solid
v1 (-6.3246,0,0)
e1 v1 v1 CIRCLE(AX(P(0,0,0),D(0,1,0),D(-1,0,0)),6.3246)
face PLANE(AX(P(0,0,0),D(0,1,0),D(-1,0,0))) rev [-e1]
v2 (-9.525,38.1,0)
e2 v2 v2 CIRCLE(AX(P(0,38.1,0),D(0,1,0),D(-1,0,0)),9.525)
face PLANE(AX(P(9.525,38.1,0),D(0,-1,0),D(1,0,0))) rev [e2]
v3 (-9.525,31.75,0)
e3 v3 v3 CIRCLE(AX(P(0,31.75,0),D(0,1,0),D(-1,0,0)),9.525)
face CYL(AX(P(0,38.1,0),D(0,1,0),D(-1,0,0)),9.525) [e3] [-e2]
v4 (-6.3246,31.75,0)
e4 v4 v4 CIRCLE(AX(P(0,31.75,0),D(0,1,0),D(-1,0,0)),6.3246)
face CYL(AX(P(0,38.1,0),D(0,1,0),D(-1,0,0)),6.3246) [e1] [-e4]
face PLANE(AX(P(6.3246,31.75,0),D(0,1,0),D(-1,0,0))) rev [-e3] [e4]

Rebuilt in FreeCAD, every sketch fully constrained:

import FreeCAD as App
import Part
import Sketcher
Q = App.Units.Quantity

doc = App.newDocument("Part")
body = doc.addObject("PartDesign::Body", "Body")

# Sketch on XY plane
sketch1 = doc.addObject("Sketcher::SketchObject", "Sketch")
body.addObject(sketch1)
sketch1.AttachmentSupport = (doc.XY_Plane, [""])
sketch1.MapMode = "FlatFace"
sketch1.addGeometry(Part.LineSegment(App.Vector(0, 0, 0), App.Vector(6.3246, 0, 0)), False)
sketch1.addGeometry(Part.LineSegment(App.Vector(6.3246, 0, 0), App.Vector(6.3246, 31.75, 0)), False)
sketch1.addGeometry(Part.LineSegment(App.Vector(6.3246, 31.75, 0), App.Vector(9.525, 31.75, 0)), False)
sketch1.addGeometry(Part.LineSegment(App.Vector(9.525, 31.75, 0), App.Vector(9.525, 38.1, 0)), False)
sketch1.addGeometry(Part.LineSegment(App.Vector(9.525, 38.1, 0), App.Vector(0, 38.1, 0)), False)
sketch1.addGeometry(Part.LineSegment(App.Vector(0, 38.1, 0), App.Vector(0, 0, 0)), False)
sketch1.addConstraint(Sketcher.Constraint("Coincident", 0, 2, 1, 1))
sketch1.addConstraint(Sketcher.Constraint("Coincident", 1, 2, 2, 1))
sketch1.addConstraint(Sketcher.Constraint("Coincident", 2, 2, 3, 1))
sketch1.addConstraint(Sketcher.Constraint("Coincident", 3, 2, 4, 1))
sketch1.addConstraint(Sketcher.Constraint("Coincident", 4, 2, 5, 1))
sketch1.addConstraint(Sketcher.Constraint("Coincident", 5, 2, 0, 1))
sketch1.addConstraint(Sketcher.Constraint("Horizontal", 0))
sketch1.addConstraint(Sketcher.Constraint("Vertical", 1))
sketch1.addConstraint(Sketcher.Constraint("Horizontal", 2))
sketch1.addConstraint(Sketcher.Constraint("Vertical", 3))
sketch1.addConstraint(Sketcher.Constraint("Horizontal", 4))
sketch1.addConstraint(Sketcher.Constraint("Vertical", 5))
sketch1.addConstraint(Sketcher.Constraint("Coincident", 5, 2, -1, 1))
sketch1.addConstraint(Sketcher.Constraint("DistanceY", 5, 2, 5, 1, Q("1.5 in")))
sketch1.addConstraint(Sketcher.Constraint("DistanceY", 1, 1, 1, 2, Q("1.25 in")))
sketch1.addConstraint(Sketcher.Constraint("DistanceX", 0, 1, 0, 2, Q("0.249 in")))
sketch1.addConstraint(Sketcher.Constraint("DistanceX", 2, 1, 2, 2, Q("0.126 in")))
revolution = doc.addObject("PartDesign::Revolution", "Revolution")
body.addObject(revolution)
revolution.Profile = sketch1
revolution.ReferenceAxis = (sketch1, ["V_Axis"])
revolution.Angle = 360

doc.recompute()
